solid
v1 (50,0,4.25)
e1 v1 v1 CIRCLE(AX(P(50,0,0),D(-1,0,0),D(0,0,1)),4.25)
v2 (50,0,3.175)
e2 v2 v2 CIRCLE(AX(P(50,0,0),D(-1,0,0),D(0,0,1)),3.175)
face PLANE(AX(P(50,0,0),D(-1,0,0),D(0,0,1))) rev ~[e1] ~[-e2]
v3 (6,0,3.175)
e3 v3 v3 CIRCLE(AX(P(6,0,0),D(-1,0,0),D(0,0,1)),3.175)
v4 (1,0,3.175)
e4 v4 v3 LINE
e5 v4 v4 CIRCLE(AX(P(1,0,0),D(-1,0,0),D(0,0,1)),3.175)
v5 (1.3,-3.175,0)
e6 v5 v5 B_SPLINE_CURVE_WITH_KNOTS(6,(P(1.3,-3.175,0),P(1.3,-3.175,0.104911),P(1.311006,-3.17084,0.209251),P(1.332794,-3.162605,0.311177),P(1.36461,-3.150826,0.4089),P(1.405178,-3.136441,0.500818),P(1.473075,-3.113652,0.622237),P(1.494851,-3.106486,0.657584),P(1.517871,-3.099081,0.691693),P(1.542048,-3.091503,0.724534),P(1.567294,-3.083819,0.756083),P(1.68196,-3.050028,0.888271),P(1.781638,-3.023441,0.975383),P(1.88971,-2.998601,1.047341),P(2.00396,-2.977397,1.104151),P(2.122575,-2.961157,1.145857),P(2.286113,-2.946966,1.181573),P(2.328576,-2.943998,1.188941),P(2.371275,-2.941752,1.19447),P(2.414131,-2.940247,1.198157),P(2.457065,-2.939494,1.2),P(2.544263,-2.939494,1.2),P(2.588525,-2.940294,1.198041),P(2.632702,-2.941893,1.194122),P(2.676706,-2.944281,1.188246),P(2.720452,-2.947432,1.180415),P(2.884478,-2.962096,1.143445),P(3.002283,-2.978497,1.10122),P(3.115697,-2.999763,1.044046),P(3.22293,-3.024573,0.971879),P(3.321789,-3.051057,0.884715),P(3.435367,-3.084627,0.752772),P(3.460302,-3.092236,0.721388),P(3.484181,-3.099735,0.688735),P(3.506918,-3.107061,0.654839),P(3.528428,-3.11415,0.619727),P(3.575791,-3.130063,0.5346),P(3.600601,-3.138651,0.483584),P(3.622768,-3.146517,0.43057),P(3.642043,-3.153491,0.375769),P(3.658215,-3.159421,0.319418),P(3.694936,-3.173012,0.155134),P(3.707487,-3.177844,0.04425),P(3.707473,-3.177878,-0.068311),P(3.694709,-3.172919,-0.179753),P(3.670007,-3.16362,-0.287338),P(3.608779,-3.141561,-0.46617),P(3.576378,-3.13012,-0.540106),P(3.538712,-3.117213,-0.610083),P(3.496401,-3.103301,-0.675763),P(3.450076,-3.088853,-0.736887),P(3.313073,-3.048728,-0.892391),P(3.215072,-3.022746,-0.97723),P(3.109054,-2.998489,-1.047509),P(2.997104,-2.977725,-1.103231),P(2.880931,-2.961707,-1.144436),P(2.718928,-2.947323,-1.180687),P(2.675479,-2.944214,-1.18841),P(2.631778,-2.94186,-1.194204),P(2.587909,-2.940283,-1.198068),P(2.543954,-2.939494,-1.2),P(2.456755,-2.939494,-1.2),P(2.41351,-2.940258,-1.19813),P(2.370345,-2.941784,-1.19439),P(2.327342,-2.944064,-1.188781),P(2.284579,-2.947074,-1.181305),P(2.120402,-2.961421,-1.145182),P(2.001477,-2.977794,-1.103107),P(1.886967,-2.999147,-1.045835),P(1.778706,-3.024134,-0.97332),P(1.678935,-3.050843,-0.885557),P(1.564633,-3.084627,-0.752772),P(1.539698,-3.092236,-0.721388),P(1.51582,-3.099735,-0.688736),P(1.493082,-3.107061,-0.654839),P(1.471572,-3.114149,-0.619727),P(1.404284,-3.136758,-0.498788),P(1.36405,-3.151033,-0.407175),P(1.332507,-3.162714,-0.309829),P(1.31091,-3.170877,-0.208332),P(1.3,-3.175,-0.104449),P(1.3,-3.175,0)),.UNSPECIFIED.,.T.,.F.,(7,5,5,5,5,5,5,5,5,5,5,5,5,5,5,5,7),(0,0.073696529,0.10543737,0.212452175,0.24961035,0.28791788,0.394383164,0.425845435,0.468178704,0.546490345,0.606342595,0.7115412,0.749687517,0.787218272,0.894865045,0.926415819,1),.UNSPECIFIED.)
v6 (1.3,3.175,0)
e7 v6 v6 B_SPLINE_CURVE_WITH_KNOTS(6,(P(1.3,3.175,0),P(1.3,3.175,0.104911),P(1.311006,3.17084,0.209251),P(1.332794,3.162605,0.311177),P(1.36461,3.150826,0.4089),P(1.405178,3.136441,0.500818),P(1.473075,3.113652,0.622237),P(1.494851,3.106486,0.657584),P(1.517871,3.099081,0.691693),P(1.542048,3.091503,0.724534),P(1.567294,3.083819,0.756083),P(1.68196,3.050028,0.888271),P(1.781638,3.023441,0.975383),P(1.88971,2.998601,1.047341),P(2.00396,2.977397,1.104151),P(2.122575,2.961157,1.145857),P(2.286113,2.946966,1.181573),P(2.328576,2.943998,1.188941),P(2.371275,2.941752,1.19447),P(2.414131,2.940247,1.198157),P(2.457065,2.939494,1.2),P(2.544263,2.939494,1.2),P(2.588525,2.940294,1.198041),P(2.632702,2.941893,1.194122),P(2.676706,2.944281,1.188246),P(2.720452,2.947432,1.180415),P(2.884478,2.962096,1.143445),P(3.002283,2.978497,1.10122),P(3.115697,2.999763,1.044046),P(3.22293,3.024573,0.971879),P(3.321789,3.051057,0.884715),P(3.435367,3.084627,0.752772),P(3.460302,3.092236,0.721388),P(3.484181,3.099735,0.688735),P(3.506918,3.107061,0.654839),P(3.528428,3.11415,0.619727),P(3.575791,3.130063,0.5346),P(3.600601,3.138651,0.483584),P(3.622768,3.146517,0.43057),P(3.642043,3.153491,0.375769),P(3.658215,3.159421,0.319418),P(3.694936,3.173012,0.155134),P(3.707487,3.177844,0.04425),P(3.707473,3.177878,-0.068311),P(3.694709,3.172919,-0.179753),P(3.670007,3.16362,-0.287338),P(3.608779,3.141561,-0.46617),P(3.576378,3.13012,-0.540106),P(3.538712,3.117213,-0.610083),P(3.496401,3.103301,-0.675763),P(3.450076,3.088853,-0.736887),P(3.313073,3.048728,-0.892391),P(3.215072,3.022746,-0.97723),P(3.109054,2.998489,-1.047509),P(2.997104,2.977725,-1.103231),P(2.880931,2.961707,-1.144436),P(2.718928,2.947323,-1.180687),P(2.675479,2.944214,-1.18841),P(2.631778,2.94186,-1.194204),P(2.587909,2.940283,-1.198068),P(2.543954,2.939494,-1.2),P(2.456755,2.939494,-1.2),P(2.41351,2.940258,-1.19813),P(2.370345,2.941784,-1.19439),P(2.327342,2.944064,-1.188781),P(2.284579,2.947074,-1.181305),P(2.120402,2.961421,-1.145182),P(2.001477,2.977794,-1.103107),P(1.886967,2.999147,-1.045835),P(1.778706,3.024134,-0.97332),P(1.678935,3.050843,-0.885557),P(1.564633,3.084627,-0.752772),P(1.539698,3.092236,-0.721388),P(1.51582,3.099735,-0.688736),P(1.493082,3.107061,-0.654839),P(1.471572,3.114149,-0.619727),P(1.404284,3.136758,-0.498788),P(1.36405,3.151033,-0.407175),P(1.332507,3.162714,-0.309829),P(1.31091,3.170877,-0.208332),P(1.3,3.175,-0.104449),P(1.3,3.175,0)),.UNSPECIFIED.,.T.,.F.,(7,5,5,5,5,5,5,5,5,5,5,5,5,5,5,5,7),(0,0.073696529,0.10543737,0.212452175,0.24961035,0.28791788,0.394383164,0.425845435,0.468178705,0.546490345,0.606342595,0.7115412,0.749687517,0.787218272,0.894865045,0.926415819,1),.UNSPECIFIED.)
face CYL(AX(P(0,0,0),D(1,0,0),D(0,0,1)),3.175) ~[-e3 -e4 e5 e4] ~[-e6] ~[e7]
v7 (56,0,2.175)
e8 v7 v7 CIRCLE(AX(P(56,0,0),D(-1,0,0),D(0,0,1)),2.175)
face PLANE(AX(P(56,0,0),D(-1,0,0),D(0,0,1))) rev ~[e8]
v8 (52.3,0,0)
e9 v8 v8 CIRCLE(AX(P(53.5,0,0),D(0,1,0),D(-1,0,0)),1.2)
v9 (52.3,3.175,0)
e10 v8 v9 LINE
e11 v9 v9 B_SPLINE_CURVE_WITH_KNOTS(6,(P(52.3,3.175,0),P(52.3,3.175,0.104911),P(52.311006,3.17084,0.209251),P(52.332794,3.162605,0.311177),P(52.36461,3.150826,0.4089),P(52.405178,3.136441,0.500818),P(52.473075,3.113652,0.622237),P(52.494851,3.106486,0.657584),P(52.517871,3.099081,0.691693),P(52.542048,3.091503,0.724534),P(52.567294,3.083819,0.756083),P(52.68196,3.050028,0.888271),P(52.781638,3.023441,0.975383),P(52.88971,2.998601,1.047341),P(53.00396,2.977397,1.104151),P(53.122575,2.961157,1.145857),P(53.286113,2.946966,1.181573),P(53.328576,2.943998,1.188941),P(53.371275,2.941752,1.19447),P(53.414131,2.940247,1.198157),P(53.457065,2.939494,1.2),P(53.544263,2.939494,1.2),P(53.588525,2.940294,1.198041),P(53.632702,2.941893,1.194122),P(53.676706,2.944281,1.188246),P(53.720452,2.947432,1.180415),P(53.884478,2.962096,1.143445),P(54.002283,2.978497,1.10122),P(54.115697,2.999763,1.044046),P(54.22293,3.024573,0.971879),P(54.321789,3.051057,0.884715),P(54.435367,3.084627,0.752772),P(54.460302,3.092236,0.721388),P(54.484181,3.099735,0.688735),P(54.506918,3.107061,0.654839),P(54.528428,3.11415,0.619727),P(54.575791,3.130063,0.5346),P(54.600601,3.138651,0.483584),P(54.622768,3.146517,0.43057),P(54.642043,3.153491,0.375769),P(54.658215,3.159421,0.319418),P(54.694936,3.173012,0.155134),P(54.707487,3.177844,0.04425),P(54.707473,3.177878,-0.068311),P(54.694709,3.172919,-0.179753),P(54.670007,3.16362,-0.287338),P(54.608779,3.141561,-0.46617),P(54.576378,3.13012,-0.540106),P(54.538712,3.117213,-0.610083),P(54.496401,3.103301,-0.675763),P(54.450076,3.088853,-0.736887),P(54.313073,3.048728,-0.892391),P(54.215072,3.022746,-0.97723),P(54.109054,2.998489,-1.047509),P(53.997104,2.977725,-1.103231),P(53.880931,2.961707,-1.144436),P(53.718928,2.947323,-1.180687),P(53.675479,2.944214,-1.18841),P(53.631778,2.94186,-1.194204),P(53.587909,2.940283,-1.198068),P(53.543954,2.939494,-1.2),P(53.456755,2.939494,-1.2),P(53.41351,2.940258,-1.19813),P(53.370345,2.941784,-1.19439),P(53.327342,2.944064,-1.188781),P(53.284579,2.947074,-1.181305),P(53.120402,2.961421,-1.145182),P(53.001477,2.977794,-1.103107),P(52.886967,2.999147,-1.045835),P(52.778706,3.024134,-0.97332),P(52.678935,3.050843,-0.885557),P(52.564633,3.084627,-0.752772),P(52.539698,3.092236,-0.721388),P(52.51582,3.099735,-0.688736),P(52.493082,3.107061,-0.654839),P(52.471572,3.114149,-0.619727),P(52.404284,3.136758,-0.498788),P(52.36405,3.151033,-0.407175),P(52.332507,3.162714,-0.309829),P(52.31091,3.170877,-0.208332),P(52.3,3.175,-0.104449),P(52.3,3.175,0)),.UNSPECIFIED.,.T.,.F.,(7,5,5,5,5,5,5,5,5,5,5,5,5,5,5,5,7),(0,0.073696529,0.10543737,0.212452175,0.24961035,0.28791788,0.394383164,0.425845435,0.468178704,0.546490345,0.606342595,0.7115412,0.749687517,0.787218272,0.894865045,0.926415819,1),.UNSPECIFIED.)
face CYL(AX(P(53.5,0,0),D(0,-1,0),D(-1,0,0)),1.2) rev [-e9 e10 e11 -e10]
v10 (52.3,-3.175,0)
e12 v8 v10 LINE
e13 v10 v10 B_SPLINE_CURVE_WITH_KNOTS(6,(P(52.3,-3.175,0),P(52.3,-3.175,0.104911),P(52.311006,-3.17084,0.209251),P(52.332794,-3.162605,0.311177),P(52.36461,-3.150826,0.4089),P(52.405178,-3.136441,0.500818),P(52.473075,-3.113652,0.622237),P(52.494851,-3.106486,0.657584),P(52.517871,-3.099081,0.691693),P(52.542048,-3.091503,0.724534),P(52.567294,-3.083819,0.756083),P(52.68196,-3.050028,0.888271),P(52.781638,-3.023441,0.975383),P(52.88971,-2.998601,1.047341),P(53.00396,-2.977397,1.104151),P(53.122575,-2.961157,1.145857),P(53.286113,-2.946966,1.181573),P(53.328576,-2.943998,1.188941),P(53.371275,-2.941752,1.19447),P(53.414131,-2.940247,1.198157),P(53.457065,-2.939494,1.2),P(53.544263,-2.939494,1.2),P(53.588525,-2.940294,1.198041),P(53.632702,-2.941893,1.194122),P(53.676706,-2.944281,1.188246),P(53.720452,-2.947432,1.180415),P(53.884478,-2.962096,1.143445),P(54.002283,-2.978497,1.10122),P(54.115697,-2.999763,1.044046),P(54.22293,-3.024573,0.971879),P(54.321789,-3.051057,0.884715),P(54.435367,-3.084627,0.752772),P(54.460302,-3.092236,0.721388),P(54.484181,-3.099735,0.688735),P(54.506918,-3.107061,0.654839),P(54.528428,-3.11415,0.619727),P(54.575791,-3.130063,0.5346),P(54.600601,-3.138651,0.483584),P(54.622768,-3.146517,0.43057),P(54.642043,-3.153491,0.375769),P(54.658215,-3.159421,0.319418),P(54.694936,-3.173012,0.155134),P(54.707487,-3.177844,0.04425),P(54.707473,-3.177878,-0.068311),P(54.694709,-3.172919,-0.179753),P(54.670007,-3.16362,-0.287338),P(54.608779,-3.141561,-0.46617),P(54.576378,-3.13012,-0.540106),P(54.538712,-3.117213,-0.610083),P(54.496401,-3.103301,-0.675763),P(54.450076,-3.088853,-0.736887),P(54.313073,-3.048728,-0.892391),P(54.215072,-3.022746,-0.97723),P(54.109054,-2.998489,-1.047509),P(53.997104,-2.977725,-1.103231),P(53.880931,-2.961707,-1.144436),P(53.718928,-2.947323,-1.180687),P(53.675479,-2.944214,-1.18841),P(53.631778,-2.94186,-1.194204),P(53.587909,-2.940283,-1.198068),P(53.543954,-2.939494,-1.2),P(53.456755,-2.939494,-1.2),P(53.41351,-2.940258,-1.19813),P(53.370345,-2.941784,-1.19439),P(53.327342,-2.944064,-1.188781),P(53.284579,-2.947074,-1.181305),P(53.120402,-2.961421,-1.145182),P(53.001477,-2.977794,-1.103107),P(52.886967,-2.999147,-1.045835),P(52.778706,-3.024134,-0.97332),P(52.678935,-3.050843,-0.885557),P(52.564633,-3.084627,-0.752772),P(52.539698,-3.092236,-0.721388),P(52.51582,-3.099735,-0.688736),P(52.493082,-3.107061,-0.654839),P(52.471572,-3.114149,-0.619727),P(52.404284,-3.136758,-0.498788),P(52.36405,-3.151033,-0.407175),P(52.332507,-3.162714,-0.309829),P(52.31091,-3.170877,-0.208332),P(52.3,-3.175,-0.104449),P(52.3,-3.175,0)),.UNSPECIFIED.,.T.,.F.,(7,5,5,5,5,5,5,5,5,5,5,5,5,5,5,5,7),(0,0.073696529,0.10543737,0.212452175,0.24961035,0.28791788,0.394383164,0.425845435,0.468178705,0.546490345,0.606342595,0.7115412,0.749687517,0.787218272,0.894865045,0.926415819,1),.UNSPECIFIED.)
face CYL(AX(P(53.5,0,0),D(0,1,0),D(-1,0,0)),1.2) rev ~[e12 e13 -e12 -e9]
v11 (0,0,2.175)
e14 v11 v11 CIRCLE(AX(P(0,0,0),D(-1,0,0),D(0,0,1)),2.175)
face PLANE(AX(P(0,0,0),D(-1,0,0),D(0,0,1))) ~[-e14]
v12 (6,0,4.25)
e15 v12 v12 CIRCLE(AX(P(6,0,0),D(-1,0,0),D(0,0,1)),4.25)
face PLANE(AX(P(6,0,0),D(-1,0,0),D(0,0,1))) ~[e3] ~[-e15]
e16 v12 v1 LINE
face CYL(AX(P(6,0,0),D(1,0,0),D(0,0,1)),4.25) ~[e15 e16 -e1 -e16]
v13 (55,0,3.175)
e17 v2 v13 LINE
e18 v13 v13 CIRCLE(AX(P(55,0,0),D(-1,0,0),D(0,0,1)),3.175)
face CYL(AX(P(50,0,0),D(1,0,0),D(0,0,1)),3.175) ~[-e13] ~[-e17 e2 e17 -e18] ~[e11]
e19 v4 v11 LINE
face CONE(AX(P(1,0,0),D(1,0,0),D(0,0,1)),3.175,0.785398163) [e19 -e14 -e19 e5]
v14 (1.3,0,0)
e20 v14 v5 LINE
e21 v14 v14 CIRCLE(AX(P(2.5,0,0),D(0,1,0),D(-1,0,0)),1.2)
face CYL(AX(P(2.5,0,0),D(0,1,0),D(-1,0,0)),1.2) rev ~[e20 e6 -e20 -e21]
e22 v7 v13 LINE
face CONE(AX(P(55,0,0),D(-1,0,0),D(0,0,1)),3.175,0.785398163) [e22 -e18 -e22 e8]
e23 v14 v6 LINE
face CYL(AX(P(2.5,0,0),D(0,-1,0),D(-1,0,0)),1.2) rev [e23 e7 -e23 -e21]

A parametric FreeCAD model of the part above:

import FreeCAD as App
import Part
import Sketcher
from FreeCAD import Vector


def edges_at(feature, points):
    """Names of the edges that pass closest to the given points."""
    edges = feature.Shape.Edges
    near = lambda p: min(range(len(edges)), key=lambda i: edges[i].distToShape(Part.Vertex(*p))[0])
    return sorted({f"Edge{near(p) + 1}" for p in points})

doc = App.newDocument("Part")
params = doc.addObject("Spreadsheet::Sheet", "Params")
for row, (alias, value) in enumerate([
    ("sketch1_width", "56 mm"),
    ("sketch1_width2", "6 mm"),
    ("revolution_angle", "360 deg"),
    ("chamfer_size", "1 mm"),
    ("sketch2_diameter", "2.4 mm"),
    ("pocket1_length", "10 mm"),
], start=1):
    params.set(f"A{row}", alias)
    params.set(f"B{row}", "=" + value)
    params.setAlias(f"B{row}", alias)

body = doc.addObject("PartDesign::Body", "Body")

sketch1 = body.newObject("Sketcher::SketchObject", "Sketch")
sketch1.AttachmentSupport = (doc.getObject("XZ_Plane"), [""])
sketch1.MapMode = "FlatFace"
sketch1.addGeometry([
    Part.LineSegment(Vector(56, 0, 0), Vector(0, 0, 0)),
    Part.LineSegment(Vector(0, 0, 0), Vector(0, 3.2, 0)),
    Part.LineSegment(Vector(0, 3.2, 0), Vector(6, 3.2, 0)),
    Part.LineSegment(Vector(6, 3.2, 0), Vector(6, 4.2, 0)),
    Part.LineSegment(Vector(6, 4.2, 0), Vector(50, 4.2, 0)),
    Part.LineSegment(Vector(50, 4.2, 0), Vector(50, 3.2, 0)),
    Part.LineSegment(Vector(50, 3.2, 0), Vector(56, 3.2, 0)),
    Part.LineSegment(Vector(56, 3.2, 0), Vector(56, 0, 0)),
], False)
sketch1.addConstraint([
    Sketcher.Constraint("Coincident", 0, 2, 1, 1),
    Sketcher.Constraint("Coincident", 1, 2, 2, 1),
    Sketcher.Constraint("Coincident", 2, 2, 3, 1),
    Sketcher.Constraint("Coincident", 3, 2, 4, 1),
    Sketcher.Constraint("Coincident", 4, 2, 5, 1),
    Sketcher.Constraint("Coincident", 5, 2, 6, 1),
    Sketcher.Constraint("Coincident", 6, 2, 7, 1),
    Sketcher.Constraint("Coincident", 7, 2, 0, 1),
    Sketcher.Constraint("Horizontal", 0),
    Sketcher.Constraint("Vertical", 1),
    Sketcher.Constraint("Horizontal", 2),
    Sketcher.Constraint("Vertical", 3),
    Sketcher.Constraint("Horizontal", 4),
    Sketcher.Constraint("Vertical", 5),
    Sketcher.Constraint("Horizontal", 6),
    Sketcher.Constraint("Vertical", 7),
    Sketcher.Constraint("Coincident", 0, 2, -1, 1),
    Sketcher.Constraint("Horizontal", 2, 2, 5, 2),
    Sketcher.Constraint("Equal", 2, 6),
    Sketcher.Constraint("DistanceX", 0, 2, 0, 1, 56.0),
    Sketcher.Constraint("DistanceX", 2, 1, 2, 2, 6.0),
    Sketcher.Constraint("DistanceY", 1, 1, 1, 2, 3.175),
    Sketcher.Constraint("DistanceY", -1, 1, 3, 2, 4.25),
])
sketch1.setExpression("Constraints[19]", "Params.sketch1_width")
sketch1.setExpression("Constraints[20]", "Params.sketch1_width2")
revolution = body.newObject("PartDesign::Revolution", "Revolution")
revolution.Profile = sketch1
revolution.ReferenceAxis = (sketch1, ["H_Axis"])
revolution.setExpression("Angle", "Params.revolution_angle")
doc.recompute()

chamfer = body.newObject("PartDesign::Chamfer", "Chamfer")
chamfer.Base = (revolution, edges_at(revolution, [(0, 0, -3.175), (56, 0, -3.175)]))
chamfer.setExpression("Size", "Params.chamfer_size")

sketch2 = body.newObject("Sketcher::SketchObject", "Sketch001")
sketch2.AttachmentSupport = (doc.getObject("XZ_Plane"), [""])
sketch2.MapMode = "FlatFace"
sketch2.addGeometry([
    Part.Circle(Vector(2.5, 0, 0), Vector(0, 0, 1), 1.2),
    Part.Circle(Vector(53.5, 0, 0), Vector(0, 0, 1), 1.2),
], False)
sketch2.addConstraint([
    Sketcher.Constraint("Equal", 0, 1),
    Sketcher.Constraint("PointOnObject", 0, 3, -1),
    Sketcher.Constraint("PointOnObject", 1, 3, -1),
    Sketcher.Constraint("Diameter", 0, 2.4),
    Sketcher.Constraint("DistanceX", -1, 1, 0, 3, 2.5),
    Sketcher.Constraint("DistanceX", 0, 3, 1, 3, 51.0),
])
sketch2.setExpression("Constraints[3]", "Params.sketch2_diameter")
pocket1 = body.newObject("PartDesign::Pocket", "Pocket")
pocket1.Profile = sketch2
pocket1.setExpression("Length", "Params.pocket1_length")
pocket1.Midplane = True

doc.recompute()
